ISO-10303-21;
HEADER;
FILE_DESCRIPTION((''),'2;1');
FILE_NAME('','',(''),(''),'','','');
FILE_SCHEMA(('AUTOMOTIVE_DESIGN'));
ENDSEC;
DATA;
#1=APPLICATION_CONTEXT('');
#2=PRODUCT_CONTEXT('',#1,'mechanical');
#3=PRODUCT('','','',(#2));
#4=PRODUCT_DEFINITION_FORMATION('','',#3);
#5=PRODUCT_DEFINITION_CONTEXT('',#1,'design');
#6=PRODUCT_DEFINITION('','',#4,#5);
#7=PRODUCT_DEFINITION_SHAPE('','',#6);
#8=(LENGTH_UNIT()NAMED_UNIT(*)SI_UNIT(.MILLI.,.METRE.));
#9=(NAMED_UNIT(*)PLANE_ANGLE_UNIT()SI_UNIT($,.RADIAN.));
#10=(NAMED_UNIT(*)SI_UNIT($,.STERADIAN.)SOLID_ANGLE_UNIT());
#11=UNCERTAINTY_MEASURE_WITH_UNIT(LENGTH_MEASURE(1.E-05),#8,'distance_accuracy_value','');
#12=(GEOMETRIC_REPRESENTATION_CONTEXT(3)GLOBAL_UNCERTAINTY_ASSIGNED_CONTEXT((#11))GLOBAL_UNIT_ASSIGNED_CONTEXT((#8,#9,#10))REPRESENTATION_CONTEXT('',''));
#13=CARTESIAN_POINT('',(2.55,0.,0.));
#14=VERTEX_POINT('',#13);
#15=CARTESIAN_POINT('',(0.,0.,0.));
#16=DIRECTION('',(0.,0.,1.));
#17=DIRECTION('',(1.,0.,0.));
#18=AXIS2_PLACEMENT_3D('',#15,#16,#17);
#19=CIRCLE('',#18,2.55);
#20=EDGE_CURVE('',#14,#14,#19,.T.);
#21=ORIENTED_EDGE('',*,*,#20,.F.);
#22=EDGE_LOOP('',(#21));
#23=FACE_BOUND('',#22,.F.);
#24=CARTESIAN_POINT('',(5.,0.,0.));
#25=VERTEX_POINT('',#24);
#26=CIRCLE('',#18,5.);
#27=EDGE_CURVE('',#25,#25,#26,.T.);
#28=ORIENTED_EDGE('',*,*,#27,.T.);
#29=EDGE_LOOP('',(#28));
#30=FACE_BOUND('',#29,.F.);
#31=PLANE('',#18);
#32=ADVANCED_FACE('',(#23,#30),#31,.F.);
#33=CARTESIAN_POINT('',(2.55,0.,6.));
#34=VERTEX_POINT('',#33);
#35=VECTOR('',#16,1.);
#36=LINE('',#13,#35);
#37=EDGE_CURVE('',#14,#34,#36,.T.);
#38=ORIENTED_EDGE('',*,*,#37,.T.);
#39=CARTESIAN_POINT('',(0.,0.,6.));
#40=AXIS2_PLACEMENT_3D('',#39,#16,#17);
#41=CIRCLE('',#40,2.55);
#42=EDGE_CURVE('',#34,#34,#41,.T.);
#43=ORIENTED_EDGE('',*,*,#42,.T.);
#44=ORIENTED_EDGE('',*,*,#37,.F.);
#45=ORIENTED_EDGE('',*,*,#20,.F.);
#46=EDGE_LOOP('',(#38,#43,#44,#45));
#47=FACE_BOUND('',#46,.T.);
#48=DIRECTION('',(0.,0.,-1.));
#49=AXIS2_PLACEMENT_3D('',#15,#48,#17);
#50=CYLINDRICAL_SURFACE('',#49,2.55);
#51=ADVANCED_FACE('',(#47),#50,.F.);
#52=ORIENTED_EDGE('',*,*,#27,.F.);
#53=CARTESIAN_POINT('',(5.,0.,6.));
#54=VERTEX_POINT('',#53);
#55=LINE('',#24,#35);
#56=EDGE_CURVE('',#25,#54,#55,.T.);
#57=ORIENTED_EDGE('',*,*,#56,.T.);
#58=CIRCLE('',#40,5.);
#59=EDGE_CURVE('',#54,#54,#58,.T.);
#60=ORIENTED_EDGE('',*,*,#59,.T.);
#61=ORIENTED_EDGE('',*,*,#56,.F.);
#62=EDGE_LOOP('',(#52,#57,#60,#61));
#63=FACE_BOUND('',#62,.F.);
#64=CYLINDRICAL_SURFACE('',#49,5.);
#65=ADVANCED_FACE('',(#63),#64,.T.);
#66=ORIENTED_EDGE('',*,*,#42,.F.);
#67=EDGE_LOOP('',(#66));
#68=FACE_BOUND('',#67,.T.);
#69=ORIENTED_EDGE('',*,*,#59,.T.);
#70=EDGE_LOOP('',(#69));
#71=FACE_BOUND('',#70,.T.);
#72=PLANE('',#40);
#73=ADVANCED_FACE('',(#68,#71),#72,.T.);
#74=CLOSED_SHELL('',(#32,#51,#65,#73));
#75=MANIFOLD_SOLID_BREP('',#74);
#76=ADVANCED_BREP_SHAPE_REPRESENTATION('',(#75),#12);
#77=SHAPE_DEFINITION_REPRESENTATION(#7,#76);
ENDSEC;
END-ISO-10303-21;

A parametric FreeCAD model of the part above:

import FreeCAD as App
import Part
import Sketcher

V = App.Vector
Q = App.Units.Quantity

doc = App.newDocument("Part")
body = doc.addObject("PartDesign::Body", "Body")

sketch1 = body.newObject("Sketcher::SketchObject", "Sketch")
sketch1.AttachmentSupport = (doc.getObject("XY_Plane"), [""])
sketch1.MapMode = "FlatFace"
sketch1.addGeometry(Part.Circle(V(0, 0, 0), V(0, 0, 1), 5), False)
sketch1.addGeometry(Part.Circle(V(0, 0, 0), V(0, 0, 1), 2.55), False)
sketch1.addConstraint(Sketcher.Constraint("Coincident", 0, 3, -1, 1))
sketch1.addConstraint(Sketcher.Constraint("Coincident", 1, 3, -1, 1))
sketch1.addConstraint(Sketcher.Constraint("Diameter", 0, Q("10 mm")))
sketch1.addConstraint(Sketcher.Constraint("Diameter", 1, Q("5.1 mm")))
pad1 = body.newObject("PartDesign::Pad", "Pad")
pad1.Profile = sketch1
pad1.Length = 6

doc.recompute()
